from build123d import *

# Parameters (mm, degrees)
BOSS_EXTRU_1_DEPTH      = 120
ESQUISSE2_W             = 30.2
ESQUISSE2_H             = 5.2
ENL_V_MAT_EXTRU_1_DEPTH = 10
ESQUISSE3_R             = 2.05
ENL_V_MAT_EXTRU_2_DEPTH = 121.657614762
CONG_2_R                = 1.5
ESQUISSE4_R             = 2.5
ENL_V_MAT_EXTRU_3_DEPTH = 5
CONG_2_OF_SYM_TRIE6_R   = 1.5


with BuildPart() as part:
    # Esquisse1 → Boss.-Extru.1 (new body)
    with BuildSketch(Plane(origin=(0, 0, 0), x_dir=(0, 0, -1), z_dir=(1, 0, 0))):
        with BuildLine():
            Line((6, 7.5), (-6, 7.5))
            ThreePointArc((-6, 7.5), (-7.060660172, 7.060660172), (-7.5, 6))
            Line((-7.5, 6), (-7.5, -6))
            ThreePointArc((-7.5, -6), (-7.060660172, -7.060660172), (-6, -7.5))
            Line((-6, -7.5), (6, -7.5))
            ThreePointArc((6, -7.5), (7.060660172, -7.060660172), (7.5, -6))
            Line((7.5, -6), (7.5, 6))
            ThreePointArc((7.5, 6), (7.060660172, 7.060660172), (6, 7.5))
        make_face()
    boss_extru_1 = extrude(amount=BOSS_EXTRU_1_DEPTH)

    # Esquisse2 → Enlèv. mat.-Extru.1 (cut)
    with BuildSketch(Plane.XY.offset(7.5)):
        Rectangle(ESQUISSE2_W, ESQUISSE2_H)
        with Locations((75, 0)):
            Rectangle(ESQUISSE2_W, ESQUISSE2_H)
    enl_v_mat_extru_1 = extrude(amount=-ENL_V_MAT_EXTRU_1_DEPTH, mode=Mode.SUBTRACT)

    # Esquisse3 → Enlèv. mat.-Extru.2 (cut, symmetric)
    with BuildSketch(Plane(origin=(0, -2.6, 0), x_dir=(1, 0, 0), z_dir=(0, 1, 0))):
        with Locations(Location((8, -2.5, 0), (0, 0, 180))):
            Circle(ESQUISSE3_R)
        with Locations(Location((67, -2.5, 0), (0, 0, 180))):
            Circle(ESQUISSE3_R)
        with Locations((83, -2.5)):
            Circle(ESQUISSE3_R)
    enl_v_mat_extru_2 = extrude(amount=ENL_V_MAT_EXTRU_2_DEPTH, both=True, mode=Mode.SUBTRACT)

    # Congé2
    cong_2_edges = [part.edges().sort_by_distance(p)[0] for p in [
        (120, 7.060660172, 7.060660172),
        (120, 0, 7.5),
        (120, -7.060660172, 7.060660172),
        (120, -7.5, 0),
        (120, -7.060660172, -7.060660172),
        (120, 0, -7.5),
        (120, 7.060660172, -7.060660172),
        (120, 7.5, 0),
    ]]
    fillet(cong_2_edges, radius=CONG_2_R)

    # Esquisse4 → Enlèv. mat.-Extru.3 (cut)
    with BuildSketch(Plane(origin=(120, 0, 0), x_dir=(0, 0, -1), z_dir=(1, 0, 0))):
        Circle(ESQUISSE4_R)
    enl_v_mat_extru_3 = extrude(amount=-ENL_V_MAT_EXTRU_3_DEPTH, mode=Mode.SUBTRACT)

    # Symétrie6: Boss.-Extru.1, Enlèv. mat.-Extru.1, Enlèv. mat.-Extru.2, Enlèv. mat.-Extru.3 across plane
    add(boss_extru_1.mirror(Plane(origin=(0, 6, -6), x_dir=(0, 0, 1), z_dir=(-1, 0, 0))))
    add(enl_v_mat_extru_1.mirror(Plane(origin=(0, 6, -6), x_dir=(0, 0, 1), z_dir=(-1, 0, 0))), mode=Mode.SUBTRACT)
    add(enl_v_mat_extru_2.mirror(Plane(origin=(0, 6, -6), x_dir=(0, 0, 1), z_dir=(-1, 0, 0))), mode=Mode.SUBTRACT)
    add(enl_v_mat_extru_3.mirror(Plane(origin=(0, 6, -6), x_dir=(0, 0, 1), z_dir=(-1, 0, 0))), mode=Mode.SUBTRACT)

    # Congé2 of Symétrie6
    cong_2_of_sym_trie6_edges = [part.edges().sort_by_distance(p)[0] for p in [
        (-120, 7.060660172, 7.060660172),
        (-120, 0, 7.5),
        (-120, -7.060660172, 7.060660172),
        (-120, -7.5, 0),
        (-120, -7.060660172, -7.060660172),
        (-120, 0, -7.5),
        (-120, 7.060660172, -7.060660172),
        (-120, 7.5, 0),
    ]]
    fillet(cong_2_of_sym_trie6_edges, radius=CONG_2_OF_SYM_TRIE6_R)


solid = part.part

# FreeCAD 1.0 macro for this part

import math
import FreeCAD as App
import Part
import Sketcher
Q = App.Units.Quantity


def edges_at(feature, points):
    """Names of the edges that pass closest to the given points."""
    edges = feature.Shape.Edges
    near = lambda p: min(range(len(edges)), key=lambda i: edges[i].distToShape(Part.Vertex(*p))[0])
    return sorted({f"Edge{near(p) + 1}" for p in points})


def add_polygon(sketch, points):
    """Adds a closed chain of lines whose ends are joined by coincident constraints."""
    first, n = sketch.GeometryCount, len(points)
    for a, b in zip(points, points[1:] + points[:1]):
        sketch.addGeometry(Part.LineSegment(App.Vector(*a, 0), App.Vector(*b, 0)), False)
    for i in range(n):
        sketch.addConstraint(Sketcher.Constraint("Coincident", first + i, 2, first + (i + 1) % n, 1))

doc = App.newDocument("Part")
body = doc.addObject("PartDesign::Body", "Body")

# Sketch on YZ plane
sketch1 = body.newObject("Sketcher::SketchObject", "Sketch")
sketch1.AttachmentSupport = (doc.getObject("YZ_Plane"), [""])
sketch1.MapMode = "FlatFace"
sketch1.addGeometry(Part.LineSegment(App.Vector(7.5, -6, 0), App.Vector(7.5, 6, 0)), False)
sketch1.addGeometry(Part.ArcOfCircle(Part.Circle(App.Vector(6, 6, 0), App.Vector(0, 0, 1), 1.5), math.radians(0), math.radians(90)), False)
sketch1.addGeometry(Part.LineSegment(App.Vector(6, 7.5, 0), App.Vector(-6, 7.5, 0)), False)
sketch1.addGeometry(Part.ArcOfCircle(Part.Circle(App.Vector(-6, 6, 0), App.Vector(0, 0, 1), 1.5), math.radians(90), math.radians(180)), False)
sketch1.addGeometry(Part.LineSegment(App.Vector(-7.5, 6, 0), App.Vector(-7.5, -6, 0)), False)
sketch1.addGeometry(Part.ArcOfCircle(Part.Circle(App.Vector(-6, -6, 0), App.Vector(0, 0, 1), 1.5), math.radians(180), math.radians(270)), False)
sketch1.addGeometry(Part.LineSegment(App.Vector(-6, -7.5, 0), App.Vector(6, -7.5, 0)), False)
sketch1.addGeometry(Part.ArcOfCircle(Part.Circle(App.Vector(6, -6, 0), App.Vector(0, 0, 1), 1.5), math.radians(-90), math.radians(0)), False)
sketch1.addConstraint(Sketcher.Constraint("Tangent", 0, 2, 1, 1))
sketch1.addConstraint(Sketcher.Constraint("Tangent", 1, 2, 2, 1))
sketch1.addConstraint(Sketcher.Constraint("Tangent", 2, 2, 3, 1))
sketch1.addConstraint(Sketcher.Constraint("Tangent", 3, 2, 4, 1))
sketch1.addConstraint(Sketcher.Constraint("Tangent", 4, 2, 5, 1))
sketch1.addConstraint(Sketcher.Constraint("Tangent", 5, 2, 6, 1))
sketch1.addConstraint(Sketcher.Constraint("Tangent", 6, 2, 7, 1))
sketch1.addConstraint(Sketcher.Constraint("Tangent", 7, 2, 0, 1))
sketch1.addConstraint(Sketcher.Constraint("Vertical", 0))
sketch1.addConstraint(Sketcher.Constraint("Horizontal", 2))
sketch1.addConstraint(Sketcher.Constraint("Vertical", 4))
sketch1.addConstraint(Sketcher.Constraint("Horizontal", 6))
sketch1.addConstraint(Sketcher.Constraint("Equal", 1, 3))
sketch1.addConstraint(Sketcher.Constraint("Equal", 3, 5))
sketch1.addConstraint(Sketcher.Constraint("Equal", 5, 7))
sketch1.addConstraint(Sketcher.Constraint("Symmetric", 1, 3, 5, 3, -1, 1))
sketch1.addConstraint(Sketcher.Constraint("Equal", 6, 0))
sketch1.addConstraint(Sketcher.Constraint("Radius", 1, Q("1.5 mm")))
sketch1.addConstraint(Sketcher.Constraint("DistanceX", 2, 2, 2, 1, Q("12 mm")))
pad1 = body.newObject("PartDesign::Pad", "Pad")
pad1.Profile = sketch1
pad1.Length = 120

# Sketch on XY plane
sketch2 = body.newObject("Sketcher::SketchObject", "Sketch001")
sketch2.AttachmentSupport = (doc.getObject("XY_Plane"), [""])
sketch2.MapMode = "FlatFace"
sketch2.AttachmentOffset = App.Placement(App.Vector(0, 0, 7.5), App.Rotation())
add_polygon(sketch2, [(-15, 3), (-15, -3), (15, -3), (15, 3)])  # lines 0-3
add_polygon(sketch2, [(60, 3), (60, -3), (90, -3), (90, 3)])  # lines 4-7
sketch2.addConstraint(Sketcher.Constraint("Vertical", 0))
sketch2.addConstraint(Sketcher.Constraint("Horizontal", 1))
sketch2.addConstraint(Sketcher.Constraint("Vertical", 2))
sketch2.addConstraint(Sketcher.Constraint("Horizontal", 3))
sketch2.addConstraint(Sketcher.Constraint("Vertical", 4))
sketch2.addConstraint(Sketcher.Constraint("Horizontal", 5))
sketch2.addConstraint(Sketcher.Constraint("Vertical", 6))
sketch2.addConstraint(Sketcher.Constraint("Horizontal", 7))
sketch2.addConstraint(Sketcher.Constraint("Symmetric", 0, 2, 2, 2, -1, 1))
sketch2.addConstraint(Sketcher.Constraint("Horizontal", 1, 2, 4, 2))
sketch2.addConstraint(Sketcher.Constraint("Horizontal", 3, 2, 6, 2))
sketch2.addConstraint(Sketcher.Constraint("Equal", 3, 5))
sketch2.addConstraint(Sketcher.Constraint("DistanceX", 1, 1, 1, 2, Q("30.2 mm")))
sketch2.addConstraint(Sketcher.Constraint("DistanceY", 0, 2, 0, 1, Q("5.2 mm")))
sketch2.addConstraint(Sketcher.Constraint("DistanceX", 0, 2, 4, 2, Q("75 mm")))
pocket1 = body.newObject("PartDesign::Pocket", "Pocket")
pocket1.Profile = sketch2
pocket1.Length = 10

# Sketch on XZ plane
sketch3 = body.newObject("Sketcher::SketchObject", "Sketch002")
sketch3.AttachmentSupport = (doc.getObject("XZ_Plane"), [""])
sketch3.MapMode = "FlatFace"
sketch3.AttachmentOffset = App.Placement(App.Vector(0, 0, 2.6), App.Rotation())
sketch3.addGeometry(Part.Circle(App.Vector(8, 2.5, 0), App.Vector(0, 0, 1), 2), False)
sketch3.addGeometry(Part.Circle(App.Vector(67, 2.5, 0), App.Vector(0, 0, 1), 2), False)
sketch3.addGeometry(Part.Circle(App.Vector(83, 2.5, 0), App.Vector(0, 0, 1), 2), False)
sketch3.addConstraint(Sketcher.Constraint("Equal", 0, 1))
sketch3.addConstraint(Sketcher.Constraint("Equal", 1, 2))
sketch3.addConstraint(Sketcher.Constraint("Horizontal", 0, 3, 1, 3))
sketch3.addConstraint(Sketcher.Constraint("Horizontal", 1, 3, 2, 3))
sketch3.addConstraint(Sketcher.Constraint("Diameter", 0, Q("4.1 mm")))
sketch3.addConstraint(Sketcher.Constraint("DistanceX", -1, 1, 0, 3, Q("8 mm")))
sketch3.addConstraint(Sketcher.Constraint("DistanceX", -1, 1, 1, 3, Q("67 mm")))
sketch3.addConstraint(Sketcher.Constraint("DistanceX", -1, 1, 2, 3, Q("83 mm")))
sketch3.addConstraint(Sketcher.Constraint("DistanceY", -1, 1, 0, 3, Q("2.5 mm")))
pocket2 = body.newObject("PartDesign::Pocket", "Pocket001")
pocket2.Profile = sketch3
pocket2.Length = 243.31523
pocket2.Midplane = True
doc.recompute()

fillet = body.newObject("PartDesign::Fillet", "Fillet")
fillet.Base = (pocket2, edges_at(pocket2, [
    (120, 7.061, 7.061),
    (120, 0, 7.5),
    (120, -7.061, 7.061),
    (120, -7.5, 0),
    (120, -7.061, -7.061),
    (120, 0, -7.5),
    (120, 7.061, -7.061),
    (120, 7.5, 0),
]))
fillet.Radius = 1.5

# Sketch on YZ plane
sketch4 = body.newObject("Sketcher::SketchObject", "Sketch003")
sketch4.AttachmentSupport = (doc.getObject("YZ_Plane"), [""])
sketch4.MapMode = "FlatFace"
sketch4.AttachmentOffset = App.Placement(App.Vector(0, 0, 120), App.Rotation())
sketch4.addGeometry(Part.Circle(App.Vector(0, 0, 0), App.Vector(0, 0, 1), 2.5), False)
sketch4.addConstraint(Sketcher.Constraint("Coincident", 0, 3, -1, 1))
sketch4.addConstraint(Sketcher.Constraint("Diameter", 0, Q("5 mm")))
pocket3 = body.newObject("PartDesign::Pocket", "Pocket002")
pocket3.Profile = sketch4
pocket3.Length = 5
doc.recompute()

mirrored = body.newObject("PartDesign::Mirrored", "Mirrored")
mirrored.Originals = [pad1, pocket1, pocket2, pocket3]
mirrored.MirrorPlane = (doc.getObject("YZ_Plane"), [""])
body.Tip = mirrored
doc.recompute()

fillet2 = body.newObject("PartDesign::Fillet", "Fillet001")
fillet2.Base = (mirrored, edges_at(mirrored, [
    (-120, 7.061, 7.061),
    (-120, 0, 7.5),
    (-120, -7.061, 7.061),
    (-120, -7.5, 0),
    (-120, -7.061, -7.061),
    (-120, 0, -7.5),
    (-120, 7.061, -7.061),
    (-120, 7.5, 0),
]))
fillet2.Radius = 1.5

doc.recompute()
